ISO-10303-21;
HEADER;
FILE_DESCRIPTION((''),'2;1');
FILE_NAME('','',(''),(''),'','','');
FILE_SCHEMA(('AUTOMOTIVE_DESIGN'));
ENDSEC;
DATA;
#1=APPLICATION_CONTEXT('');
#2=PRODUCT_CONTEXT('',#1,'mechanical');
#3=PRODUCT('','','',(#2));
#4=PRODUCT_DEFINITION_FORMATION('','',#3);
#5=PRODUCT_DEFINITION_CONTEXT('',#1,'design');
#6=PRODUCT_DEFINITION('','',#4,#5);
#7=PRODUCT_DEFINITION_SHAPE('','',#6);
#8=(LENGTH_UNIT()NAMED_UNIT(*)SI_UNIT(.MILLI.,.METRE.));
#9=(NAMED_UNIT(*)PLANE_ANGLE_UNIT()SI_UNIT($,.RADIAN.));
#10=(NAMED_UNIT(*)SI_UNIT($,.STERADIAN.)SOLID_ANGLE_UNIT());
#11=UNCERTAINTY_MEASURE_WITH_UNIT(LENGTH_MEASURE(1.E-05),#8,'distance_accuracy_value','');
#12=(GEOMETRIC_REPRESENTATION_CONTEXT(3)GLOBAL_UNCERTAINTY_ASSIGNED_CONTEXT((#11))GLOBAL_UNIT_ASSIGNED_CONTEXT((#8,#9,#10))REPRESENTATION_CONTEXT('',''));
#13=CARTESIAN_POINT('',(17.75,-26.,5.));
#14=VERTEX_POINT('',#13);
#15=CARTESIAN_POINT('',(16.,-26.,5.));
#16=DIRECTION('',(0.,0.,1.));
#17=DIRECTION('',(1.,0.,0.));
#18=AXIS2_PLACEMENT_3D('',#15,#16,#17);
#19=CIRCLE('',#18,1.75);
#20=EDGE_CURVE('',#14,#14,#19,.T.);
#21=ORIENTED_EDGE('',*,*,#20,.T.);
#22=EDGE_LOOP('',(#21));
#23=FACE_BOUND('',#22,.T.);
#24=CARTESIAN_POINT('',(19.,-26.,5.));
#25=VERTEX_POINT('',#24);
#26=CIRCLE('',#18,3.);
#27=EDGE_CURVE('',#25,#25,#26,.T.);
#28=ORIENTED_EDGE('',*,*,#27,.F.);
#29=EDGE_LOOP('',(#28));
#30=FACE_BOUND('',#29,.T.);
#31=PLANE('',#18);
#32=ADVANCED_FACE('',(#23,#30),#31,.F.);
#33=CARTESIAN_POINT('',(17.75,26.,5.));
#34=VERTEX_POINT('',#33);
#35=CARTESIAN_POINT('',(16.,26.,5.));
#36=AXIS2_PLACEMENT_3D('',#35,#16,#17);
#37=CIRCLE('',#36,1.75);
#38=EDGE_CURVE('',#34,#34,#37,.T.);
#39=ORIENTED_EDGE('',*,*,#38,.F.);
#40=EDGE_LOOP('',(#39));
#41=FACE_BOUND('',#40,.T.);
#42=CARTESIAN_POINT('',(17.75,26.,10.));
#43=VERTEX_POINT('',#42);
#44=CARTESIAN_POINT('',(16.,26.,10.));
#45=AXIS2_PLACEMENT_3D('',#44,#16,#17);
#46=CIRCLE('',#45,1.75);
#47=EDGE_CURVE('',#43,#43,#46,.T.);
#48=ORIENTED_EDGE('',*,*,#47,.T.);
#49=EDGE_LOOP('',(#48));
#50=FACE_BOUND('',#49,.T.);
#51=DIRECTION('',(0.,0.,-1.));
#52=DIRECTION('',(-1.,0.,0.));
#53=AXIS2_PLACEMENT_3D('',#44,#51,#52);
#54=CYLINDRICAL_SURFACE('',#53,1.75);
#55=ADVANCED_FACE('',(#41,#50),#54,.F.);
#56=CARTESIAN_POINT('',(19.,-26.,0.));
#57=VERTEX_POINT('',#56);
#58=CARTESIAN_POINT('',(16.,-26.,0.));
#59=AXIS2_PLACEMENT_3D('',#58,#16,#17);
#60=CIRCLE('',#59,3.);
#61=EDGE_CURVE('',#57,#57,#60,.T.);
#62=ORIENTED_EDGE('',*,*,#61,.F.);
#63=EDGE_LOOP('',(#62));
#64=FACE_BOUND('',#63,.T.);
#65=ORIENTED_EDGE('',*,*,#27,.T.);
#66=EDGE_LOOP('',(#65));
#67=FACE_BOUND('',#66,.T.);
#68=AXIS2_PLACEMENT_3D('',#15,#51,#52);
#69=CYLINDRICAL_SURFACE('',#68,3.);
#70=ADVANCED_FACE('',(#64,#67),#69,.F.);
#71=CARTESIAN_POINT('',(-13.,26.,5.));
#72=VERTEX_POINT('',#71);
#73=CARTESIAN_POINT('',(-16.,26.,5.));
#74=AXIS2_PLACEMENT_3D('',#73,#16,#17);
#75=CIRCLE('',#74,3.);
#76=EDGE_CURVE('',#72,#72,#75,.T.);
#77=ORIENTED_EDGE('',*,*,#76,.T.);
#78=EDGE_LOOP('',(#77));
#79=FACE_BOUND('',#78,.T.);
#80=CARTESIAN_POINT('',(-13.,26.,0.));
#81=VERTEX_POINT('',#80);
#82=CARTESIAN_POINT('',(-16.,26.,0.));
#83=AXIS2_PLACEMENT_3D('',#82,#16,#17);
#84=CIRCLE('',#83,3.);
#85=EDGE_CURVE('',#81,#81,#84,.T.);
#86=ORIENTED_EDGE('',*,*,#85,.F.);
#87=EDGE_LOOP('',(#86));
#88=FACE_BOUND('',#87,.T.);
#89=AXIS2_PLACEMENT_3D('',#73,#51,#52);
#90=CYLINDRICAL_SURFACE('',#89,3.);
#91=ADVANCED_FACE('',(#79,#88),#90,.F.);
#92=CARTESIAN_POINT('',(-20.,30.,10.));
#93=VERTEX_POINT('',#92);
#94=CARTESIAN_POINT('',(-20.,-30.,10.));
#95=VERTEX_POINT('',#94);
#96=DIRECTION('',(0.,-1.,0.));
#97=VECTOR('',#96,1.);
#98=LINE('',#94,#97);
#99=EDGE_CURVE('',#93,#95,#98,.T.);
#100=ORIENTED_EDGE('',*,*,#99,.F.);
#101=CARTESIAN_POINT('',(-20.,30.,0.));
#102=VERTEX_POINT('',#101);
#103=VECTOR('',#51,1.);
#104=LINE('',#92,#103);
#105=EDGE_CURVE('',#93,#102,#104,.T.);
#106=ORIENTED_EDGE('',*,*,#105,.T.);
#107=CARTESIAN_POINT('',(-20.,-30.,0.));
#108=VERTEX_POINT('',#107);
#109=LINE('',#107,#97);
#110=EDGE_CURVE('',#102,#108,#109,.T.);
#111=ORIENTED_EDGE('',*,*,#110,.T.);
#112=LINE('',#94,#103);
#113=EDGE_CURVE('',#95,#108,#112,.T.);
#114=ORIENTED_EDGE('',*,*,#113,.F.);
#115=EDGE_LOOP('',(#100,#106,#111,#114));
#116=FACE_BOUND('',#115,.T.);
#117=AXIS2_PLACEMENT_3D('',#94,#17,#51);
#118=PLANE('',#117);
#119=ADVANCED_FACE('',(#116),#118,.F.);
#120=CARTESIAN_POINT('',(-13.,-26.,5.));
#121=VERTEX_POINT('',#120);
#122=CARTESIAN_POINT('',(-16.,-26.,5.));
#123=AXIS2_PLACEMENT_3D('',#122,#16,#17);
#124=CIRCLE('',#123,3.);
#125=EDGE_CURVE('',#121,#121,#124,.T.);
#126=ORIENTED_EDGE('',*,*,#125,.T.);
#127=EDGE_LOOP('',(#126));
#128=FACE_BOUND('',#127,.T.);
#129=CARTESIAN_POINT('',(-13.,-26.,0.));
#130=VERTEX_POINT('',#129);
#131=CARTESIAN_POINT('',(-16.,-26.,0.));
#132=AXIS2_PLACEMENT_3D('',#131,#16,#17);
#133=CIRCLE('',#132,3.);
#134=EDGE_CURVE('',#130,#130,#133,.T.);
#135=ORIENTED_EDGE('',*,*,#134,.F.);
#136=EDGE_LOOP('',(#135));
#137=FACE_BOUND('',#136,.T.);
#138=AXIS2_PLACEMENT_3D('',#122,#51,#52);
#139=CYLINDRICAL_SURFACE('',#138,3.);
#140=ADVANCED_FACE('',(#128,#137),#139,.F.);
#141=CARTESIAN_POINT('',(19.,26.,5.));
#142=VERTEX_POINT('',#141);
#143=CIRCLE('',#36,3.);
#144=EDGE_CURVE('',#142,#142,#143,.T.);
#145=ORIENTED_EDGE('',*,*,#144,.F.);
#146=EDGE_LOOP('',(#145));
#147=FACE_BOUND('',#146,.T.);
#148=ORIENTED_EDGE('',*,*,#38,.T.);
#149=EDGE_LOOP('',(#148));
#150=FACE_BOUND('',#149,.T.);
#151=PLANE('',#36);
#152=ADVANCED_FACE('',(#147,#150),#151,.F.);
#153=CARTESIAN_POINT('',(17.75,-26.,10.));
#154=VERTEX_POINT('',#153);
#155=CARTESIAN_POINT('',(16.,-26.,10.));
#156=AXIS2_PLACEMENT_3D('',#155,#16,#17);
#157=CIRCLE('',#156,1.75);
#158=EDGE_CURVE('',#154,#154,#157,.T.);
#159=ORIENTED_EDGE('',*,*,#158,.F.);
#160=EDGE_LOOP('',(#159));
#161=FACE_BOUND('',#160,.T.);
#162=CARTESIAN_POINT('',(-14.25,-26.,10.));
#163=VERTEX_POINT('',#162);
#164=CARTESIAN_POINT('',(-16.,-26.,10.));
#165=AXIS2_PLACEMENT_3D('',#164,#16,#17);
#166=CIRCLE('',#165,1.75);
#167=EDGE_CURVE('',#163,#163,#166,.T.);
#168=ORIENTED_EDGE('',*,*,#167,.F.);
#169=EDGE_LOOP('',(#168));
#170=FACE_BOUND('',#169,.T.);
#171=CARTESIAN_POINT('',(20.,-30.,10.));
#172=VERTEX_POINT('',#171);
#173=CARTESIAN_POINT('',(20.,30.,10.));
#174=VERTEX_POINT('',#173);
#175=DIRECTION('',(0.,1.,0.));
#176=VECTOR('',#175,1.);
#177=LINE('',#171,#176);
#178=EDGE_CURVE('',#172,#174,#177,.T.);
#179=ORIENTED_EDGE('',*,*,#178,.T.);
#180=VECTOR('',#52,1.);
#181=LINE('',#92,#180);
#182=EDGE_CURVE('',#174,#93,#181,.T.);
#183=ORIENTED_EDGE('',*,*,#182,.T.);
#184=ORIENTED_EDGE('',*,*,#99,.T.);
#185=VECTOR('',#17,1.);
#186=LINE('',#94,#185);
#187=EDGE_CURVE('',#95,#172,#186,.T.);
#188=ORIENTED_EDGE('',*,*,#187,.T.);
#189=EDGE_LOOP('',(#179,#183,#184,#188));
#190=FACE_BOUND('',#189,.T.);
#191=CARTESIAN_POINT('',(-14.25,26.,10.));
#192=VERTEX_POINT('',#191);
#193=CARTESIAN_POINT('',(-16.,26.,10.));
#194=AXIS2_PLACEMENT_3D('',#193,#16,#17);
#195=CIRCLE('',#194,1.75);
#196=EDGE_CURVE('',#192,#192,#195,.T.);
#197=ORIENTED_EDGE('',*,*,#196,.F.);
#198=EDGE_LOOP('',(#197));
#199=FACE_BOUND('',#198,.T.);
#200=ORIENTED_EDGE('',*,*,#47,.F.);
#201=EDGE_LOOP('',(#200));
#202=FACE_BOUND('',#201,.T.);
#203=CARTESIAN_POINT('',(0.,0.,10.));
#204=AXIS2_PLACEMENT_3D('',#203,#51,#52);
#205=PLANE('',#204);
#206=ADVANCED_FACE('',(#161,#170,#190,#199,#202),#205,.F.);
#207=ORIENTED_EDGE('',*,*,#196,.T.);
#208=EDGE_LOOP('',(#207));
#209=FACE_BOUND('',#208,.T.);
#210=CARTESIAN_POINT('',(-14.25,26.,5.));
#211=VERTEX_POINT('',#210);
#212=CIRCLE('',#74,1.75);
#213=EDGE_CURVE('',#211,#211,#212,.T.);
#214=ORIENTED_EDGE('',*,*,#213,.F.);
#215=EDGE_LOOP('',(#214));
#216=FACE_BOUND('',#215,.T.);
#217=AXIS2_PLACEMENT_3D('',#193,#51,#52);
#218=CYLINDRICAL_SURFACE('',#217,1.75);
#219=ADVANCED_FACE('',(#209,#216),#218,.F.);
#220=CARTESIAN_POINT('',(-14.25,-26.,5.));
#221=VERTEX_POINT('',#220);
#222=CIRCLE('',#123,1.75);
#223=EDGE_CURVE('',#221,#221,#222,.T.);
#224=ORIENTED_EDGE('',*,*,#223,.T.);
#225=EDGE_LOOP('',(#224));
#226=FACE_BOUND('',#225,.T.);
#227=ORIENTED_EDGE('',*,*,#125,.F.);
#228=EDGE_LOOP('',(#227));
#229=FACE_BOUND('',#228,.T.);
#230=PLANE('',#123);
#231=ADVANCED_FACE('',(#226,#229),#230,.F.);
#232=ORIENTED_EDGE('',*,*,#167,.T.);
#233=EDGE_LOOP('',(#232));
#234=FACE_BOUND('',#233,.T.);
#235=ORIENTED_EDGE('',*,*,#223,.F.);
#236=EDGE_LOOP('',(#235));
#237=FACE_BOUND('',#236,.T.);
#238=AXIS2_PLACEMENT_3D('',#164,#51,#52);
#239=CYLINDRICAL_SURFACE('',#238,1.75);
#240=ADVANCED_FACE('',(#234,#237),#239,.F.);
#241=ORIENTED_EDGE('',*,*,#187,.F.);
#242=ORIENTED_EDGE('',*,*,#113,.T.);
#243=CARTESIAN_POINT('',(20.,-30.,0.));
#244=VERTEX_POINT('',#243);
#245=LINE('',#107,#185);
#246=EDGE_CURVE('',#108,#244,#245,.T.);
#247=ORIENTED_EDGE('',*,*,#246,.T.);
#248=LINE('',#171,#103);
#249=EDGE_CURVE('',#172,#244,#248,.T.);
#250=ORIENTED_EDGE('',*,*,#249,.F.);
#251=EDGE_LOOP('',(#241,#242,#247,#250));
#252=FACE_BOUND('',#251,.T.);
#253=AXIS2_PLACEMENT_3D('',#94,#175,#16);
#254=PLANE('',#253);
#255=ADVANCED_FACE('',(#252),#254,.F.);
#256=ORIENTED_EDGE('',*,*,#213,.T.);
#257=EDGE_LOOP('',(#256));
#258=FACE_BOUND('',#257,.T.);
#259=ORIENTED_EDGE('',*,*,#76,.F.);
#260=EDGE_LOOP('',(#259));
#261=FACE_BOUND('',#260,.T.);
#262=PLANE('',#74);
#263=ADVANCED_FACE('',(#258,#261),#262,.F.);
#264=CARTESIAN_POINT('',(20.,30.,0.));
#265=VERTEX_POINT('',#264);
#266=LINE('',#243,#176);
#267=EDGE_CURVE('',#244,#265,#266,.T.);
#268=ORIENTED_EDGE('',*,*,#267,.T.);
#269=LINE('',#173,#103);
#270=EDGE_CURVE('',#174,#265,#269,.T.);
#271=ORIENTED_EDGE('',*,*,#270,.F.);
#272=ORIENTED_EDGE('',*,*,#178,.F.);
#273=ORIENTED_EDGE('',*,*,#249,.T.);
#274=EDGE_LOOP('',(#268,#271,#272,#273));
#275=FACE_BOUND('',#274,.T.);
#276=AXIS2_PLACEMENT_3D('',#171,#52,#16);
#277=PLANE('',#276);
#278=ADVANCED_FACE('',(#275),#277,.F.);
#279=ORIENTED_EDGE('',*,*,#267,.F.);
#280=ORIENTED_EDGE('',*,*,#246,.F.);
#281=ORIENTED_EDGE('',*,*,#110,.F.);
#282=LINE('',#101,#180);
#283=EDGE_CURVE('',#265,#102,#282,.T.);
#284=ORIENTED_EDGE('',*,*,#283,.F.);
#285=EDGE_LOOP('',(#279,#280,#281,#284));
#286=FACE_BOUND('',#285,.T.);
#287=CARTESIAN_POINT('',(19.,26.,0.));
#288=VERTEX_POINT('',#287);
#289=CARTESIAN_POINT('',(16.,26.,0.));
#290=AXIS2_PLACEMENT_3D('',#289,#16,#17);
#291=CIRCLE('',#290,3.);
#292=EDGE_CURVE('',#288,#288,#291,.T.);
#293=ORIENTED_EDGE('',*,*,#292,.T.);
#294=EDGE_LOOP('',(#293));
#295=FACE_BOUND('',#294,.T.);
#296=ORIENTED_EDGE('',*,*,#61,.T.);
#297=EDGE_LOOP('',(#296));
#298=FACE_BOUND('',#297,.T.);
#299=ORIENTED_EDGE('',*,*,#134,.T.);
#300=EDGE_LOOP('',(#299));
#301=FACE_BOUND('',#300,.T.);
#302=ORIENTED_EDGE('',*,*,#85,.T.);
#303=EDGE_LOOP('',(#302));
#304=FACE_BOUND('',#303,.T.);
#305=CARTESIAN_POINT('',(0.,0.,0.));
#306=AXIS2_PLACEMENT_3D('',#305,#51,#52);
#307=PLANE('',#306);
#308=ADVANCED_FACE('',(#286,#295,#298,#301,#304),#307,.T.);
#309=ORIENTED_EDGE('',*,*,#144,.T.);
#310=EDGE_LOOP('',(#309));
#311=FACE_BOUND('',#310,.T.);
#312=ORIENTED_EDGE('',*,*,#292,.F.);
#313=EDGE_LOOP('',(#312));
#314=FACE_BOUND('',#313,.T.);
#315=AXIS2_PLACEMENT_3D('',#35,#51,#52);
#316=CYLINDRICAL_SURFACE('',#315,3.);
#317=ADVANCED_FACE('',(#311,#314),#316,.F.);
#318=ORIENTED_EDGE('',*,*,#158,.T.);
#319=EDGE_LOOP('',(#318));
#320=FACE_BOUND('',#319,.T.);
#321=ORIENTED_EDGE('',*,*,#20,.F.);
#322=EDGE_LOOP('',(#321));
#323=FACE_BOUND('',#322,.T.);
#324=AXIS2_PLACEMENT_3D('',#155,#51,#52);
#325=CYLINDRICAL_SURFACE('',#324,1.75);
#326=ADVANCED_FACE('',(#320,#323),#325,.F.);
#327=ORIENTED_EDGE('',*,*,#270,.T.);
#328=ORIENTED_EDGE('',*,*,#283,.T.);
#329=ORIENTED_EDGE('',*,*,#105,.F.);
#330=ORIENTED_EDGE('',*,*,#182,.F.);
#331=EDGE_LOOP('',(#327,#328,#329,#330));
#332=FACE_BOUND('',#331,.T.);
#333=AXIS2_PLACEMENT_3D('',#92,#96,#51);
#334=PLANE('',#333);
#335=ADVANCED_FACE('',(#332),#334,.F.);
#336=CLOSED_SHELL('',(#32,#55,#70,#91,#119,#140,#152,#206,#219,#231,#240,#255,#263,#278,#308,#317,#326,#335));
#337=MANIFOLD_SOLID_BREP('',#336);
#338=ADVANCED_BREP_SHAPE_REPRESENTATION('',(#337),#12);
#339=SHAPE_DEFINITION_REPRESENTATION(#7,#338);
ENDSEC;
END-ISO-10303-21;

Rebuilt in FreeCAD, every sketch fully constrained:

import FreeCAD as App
import Part
import Sketcher
from FreeCAD import Vector

doc = App.newDocument("Part")
body = doc.addObject("PartDesign::Body", "Body")

# Sketch on XY plane
sketch1 = body.newObject("Sketcher::SketchObject", "Sketch")
sketch1.AttachmentSupport = (doc.getObject("XY_Plane"), [""])
sketch1.MapMode = "FlatFace"
sketch1.addGeometry([
    Part.LineSegment(Vector(-20, 30, 0), Vector(-20, -30, 0)),  # 0
    Part.LineSegment(Vector(-20, -30, 0), Vector(20, -30, 0)),  # 1
    Part.LineSegment(Vector(20, -30, 0), Vector(20, 30, 0)),  # 2
    Part.LineSegment(Vector(20, 30, 0), Vector(-20, 30, 0)),  # 3
    Part.Circle(Vector(-16, -26, 0), Vector(0, 0, 1), 1.8),  # 4
    Part.Circle(Vector(16, -26, 0), Vector(0, 0, 1), 1.8),  # 5
    Part.Circle(Vector(-16, 26, 0), Vector(0, 0, 1), 1.8),  # 6
    Part.Circle(Vector(16, 26, 0), Vector(0, 0, 1), 1.8),  # 7
], False)
sketch1.addConstraint([
    Sketcher.Constraint("Coincident", 0, 2, 1, 1),
    Sketcher.Constraint("Coincident", 1, 2, 2, 1),
    Sketcher.Constraint("Coincident", 2, 2, 3, 1),
    Sketcher.Constraint("Coincident", 3, 2, 0, 1),
    Sketcher.Constraint("Vertical", 0),
    Sketcher.Constraint("Horizontal", 1),
    Sketcher.Constraint("Vertical", 2),
    Sketcher.Constraint("Horizontal", 3),
    Sketcher.Constraint("Equal", 4, 5),
    Sketcher.Constraint("Equal", 5, 6),
    Sketcher.Constraint("Equal", 6, 7),
    Sketcher.Constraint("Symmetric", 5, 3, 6, 3, -1, 1),
    Sketcher.Constraint("Symmetric", 4, 3, 7, 3, -1, 1),
    Sketcher.Constraint("Symmetric", 0, 2, 2, 2, -1, 1),
    Sketcher.Constraint("Symmetric", 4, 3, 5, 3, -2),
    Sketcher.Constraint("Diameter", 4, 3.5),
    Sketcher.Constraint("DistanceX", 1, 1, 1, 2, 40.0),
    Sketcher.Constraint("DistanceY", 0, 2, 0, 1, 60.0),
    Sketcher.Constraint("DistanceX", 4, 3, -1, 1, 16.0),
    Sketcher.Constraint("DistanceY", 4, 3, -1, 1, 26.0),
])
pad1 = body.newObject("PartDesign::Pad", "Pad")
pad1.Profile = sketch1
pad1.Length = 10

# Sketch on XY plane
sketch2 = body.newObject("Sketcher::SketchObject", "Sketch001")
sketch2.AttachmentSupport = (doc.getObject("XY_Plane"), [""])
sketch2.MapMode = "FlatFace"
sketch2.addGeometry([
    Part.Circle(Vector(16, 26, 0), Vector(0, 0, 1), 3),
    Part.Circle(Vector(-16, 26, 0), Vector(0, 0, 1), 3),
    Part.Circle(Vector(16, -26, 0), Vector(0, 0, 1), 3),
    Part.Circle(Vector(-16, -26, 0), Vector(0, 0, 1), 3),
], False)
sketch2.addConstraint([
    Sketcher.Constraint("Equal", 0, 1),
    Sketcher.Constraint("Equal", 1, 2),
    Sketcher.Constraint("Equal", 2, 3),
    Sketcher.Constraint("Symmetric", 1, 3, 2, 3, -1, 1),
    Sketcher.Constraint("Symmetric", 0, 3, 3, 3, -1, 1),
    Sketcher.Constraint("Symmetric", 0, 3, 1, 3, -2),
    Sketcher.Constraint("Diameter", 0, 6.0),
    Sketcher.Constraint("DistanceX", -1, 1, 0, 3, 16.0),
    Sketcher.Constraint("DistanceY", -1, 1, 0, 3, 26.0),
])
pocket1 = body.newObject("PartDesign::Pocket", "Pocket")
pocket1.Profile = sketch2
pocket1.Length = 5
pocket1.Reversed = True

doc.recompute()
